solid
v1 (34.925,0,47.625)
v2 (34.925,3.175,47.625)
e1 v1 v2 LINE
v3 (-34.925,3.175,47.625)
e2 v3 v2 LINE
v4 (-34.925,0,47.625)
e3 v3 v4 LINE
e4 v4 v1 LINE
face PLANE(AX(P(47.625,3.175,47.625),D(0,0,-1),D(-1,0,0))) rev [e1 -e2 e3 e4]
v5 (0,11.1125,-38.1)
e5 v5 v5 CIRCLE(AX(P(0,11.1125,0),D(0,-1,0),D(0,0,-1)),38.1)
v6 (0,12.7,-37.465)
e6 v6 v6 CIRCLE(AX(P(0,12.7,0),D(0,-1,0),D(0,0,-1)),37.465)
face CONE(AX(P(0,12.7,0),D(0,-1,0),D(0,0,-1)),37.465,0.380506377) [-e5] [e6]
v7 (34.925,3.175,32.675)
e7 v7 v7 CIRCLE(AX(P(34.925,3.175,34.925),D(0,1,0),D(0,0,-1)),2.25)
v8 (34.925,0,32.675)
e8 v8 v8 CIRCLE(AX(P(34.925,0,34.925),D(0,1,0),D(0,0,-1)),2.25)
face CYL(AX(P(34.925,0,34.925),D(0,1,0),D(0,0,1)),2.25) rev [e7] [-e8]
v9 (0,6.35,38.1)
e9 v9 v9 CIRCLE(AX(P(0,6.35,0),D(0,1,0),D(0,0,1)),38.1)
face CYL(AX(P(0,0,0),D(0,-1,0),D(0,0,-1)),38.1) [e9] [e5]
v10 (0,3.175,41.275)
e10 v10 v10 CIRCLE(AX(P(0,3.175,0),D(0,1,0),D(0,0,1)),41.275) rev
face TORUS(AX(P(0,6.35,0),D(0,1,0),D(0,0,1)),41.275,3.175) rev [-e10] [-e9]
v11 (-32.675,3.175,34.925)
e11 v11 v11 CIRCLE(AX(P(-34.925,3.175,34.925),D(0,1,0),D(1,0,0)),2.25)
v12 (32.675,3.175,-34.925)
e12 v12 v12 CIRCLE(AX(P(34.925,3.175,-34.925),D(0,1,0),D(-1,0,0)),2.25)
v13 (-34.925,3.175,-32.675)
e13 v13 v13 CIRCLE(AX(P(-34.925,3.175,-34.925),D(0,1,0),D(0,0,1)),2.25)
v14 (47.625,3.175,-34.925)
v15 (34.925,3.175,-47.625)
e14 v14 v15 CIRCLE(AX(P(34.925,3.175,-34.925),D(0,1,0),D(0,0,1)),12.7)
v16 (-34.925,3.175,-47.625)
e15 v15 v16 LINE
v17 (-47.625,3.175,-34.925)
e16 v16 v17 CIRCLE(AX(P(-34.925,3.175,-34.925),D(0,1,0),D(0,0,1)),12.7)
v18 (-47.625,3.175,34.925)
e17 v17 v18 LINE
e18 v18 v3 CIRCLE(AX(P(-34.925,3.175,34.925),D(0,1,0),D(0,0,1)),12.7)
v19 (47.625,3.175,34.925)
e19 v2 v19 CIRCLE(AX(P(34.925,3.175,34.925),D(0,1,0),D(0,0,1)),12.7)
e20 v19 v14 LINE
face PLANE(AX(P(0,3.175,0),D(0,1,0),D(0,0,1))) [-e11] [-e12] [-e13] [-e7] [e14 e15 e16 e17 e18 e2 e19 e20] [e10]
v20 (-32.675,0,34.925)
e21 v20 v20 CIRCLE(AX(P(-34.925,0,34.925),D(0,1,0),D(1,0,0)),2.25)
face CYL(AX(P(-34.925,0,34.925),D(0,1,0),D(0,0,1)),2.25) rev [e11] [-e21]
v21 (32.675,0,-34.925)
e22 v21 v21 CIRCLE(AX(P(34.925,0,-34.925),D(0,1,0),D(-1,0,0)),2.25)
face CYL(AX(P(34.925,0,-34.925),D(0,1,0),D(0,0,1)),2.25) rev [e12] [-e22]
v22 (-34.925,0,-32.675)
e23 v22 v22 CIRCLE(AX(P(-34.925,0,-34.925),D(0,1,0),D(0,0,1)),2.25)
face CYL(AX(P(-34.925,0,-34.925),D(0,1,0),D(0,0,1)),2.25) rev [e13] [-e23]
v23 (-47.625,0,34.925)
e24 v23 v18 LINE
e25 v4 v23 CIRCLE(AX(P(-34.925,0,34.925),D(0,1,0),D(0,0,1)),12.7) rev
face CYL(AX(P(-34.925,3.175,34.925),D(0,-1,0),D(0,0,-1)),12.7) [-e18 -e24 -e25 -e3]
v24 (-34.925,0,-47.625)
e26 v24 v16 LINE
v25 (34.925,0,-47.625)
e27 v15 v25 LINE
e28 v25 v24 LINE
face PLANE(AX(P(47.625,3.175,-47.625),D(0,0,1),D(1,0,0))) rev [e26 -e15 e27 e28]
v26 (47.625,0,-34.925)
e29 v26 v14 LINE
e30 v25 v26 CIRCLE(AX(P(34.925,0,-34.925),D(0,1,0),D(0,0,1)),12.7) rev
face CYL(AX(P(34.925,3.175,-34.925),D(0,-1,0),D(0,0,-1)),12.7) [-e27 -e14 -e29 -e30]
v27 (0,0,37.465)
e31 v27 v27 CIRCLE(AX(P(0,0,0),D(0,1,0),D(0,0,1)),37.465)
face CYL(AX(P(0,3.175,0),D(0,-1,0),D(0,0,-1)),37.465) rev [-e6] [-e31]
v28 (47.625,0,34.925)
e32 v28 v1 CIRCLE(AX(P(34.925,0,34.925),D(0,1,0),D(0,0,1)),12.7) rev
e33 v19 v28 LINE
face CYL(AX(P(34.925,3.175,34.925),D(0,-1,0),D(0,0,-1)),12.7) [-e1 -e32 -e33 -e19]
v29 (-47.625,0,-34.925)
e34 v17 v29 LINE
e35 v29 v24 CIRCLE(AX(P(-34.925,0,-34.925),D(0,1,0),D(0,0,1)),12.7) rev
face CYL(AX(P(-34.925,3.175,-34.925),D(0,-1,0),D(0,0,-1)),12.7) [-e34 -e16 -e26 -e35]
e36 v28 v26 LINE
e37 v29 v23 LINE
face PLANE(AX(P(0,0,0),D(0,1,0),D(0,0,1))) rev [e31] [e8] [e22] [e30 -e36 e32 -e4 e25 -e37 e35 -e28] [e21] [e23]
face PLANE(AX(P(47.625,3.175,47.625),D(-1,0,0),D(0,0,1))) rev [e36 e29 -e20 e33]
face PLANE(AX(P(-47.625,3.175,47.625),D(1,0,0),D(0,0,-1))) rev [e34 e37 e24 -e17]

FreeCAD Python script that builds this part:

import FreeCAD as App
import Part
import Sketcher
Q = App.Units.Quantity


def edges_at(feature, points):
    """Names of the edges that pass closest to the given points."""
    edges = feature.Shape.Edges
    near = lambda p: min(range(len(edges)), key=lambda i: edges[i].distToShape(Part.Vertex(*p))[0])
    return sorted({f"Edge{near(p) + 1}" for p in points})

doc = App.newDocument("Part")
body = doc.addObject("PartDesign::Body", "Body")

# Sketch on XZ plane
sketch1 = body.newObject("Sketcher::SketchObject", "Sketch")
sketch1.AttachmentSupport = (doc.getObject("XZ_Plane"), [""])
sketch1.MapMode = "FlatFace"
sketch1.addGeometry([
    Part.LineSegment(App.Vector(-48, -48, 0), App.Vector(-48, 48, 0)),  # 0
    Part.LineSegment(App.Vector(-48, 48, 0), App.Vector(48, 48, 0)),  # 1
    Part.LineSegment(App.Vector(48, 48, 0), App.Vector(48, -48, 0)),  # 2
    Part.LineSegment(App.Vector(48, -48, 0), App.Vector(-48, -48, 0)),  # 3
    Part.Circle(App.Vector(0, 0, 0), App.Vector(0, 0, 1), 37),  # 4
], False)
sketch1.addConstraint([
    Sketcher.Constraint("Coincident", 0, 2, 1, 1),
    Sketcher.Constraint("Coincident", 1, 2, 2, 1),
    Sketcher.Constraint("Coincident", 2, 2, 3, 1),
    Sketcher.Constraint("Coincident", 3, 2, 0, 1),
    Sketcher.Constraint("Vertical", 0),
    Sketcher.Constraint("Horizontal", 1),
    Sketcher.Constraint("Vertical", 2),
    Sketcher.Constraint("Horizontal", 3),
    Sketcher.Constraint("Coincident", 4, 3, -1, 1),
    Sketcher.Constraint("Symmetric", 0, 2, 2, 2, -1, 1),
    Sketcher.Constraint("Equal", 3, 0),
    Sketcher.Constraint("Diameter", 4, Q("2.95 in")),
    Sketcher.Constraint("DistanceX", 1, 1, 1, 2, Q("3.75 in")),
])
pad1 = body.newObject("PartDesign::Pad", "Pad")
pad1.Profile = sketch1
pad1.Length = Q("0.125 in")
pad1.Reversed = True

# Sketch on XZ plane
sketch2 = body.newObject("Sketcher::SketchObject", "Sketch001")
sketch2.AttachmentSupport = (doc.getObject("XZ_Plane"), [""])
sketch2.MapMode = "FlatFace"
sketch2.AttachmentOffset = App.Placement(App.Vector(0, 0, -0.125 * 25.4), App.Rotation())
sketch2.addGeometry(Part.Circle(App.Vector(-34.9, -34.9, 0), App.Vector(0, 0, 1), 2.2), False)
sketch2.addConstraint([
    Sketcher.Constraint("Diameter", 0, 4.5),
    Sketcher.Constraint("DistanceX", 0, 3, -1, 1, Q("1.375 in")),
    Sketcher.Constraint("DistanceY", 0, 3, -1, 1, Q("1.375 in")),
])
pocket1 = body.newObject("PartDesign::Pocket", "Pocket")
pocket1.Profile = sketch2
pocket1.Type = "ThroughAll"
pocket1.Reversed = True
doc.recompute()

polarpattern = body.newObject("PartDesign::PolarPattern", "PolarPattern")
polarpattern.Originals = [pocket1]
polarpattern.Axis = (doc.getObject("Y_Axis"), [""])
polarpattern.Angle = 360
polarpattern.Occurrences = 4
body.Tip = polarpattern
doc.recompute()

fillet = body.newObject("PartDesign::Fillet", "Fillet")
fillet.Base = (polarpattern, edges_at(polarpattern, [
    (-47.625, 1.587, -47.625),
    (47.625, 1.587, -47.625),
    (47.625, 1.587, 47.625),
    (-47.625, 1.587, 47.625),
]))
fillet.Radius = Q("0.5 in")

# Sketch on XY plane
sketch3 = body.newObject("Sketcher::SketchObject", "Sketch002")
sketch3.AttachmentSupport = (doc.getObject("XY_Plane"), [""])
sketch3.MapMode = "FlatFace"
sketch3.addGeometry([
    Part.LineSegment(App.Vector(37.5, 3.2, 0), App.Vector(38.1, 3.2, 0)),
    Part.LineSegment(App.Vector(38.1, 3.2, 0), App.Vector(38.1, 11.1, 0)),
    Part.LineSegment(App.Vector(38.1, 11.1, 0), App.Vector(37.5, 12.7, 0)),
    Part.LineSegment(App.Vector(37.5, 12.7, 0), App.Vector(37.5, 3.2, 0)),
], False)
sketch3.addConstraint([
    Sketcher.Constraint("Coincident", 0, 2, 1, 1),
    Sketcher.Constraint("Coincident", 1, 2, 2, 1),
    Sketcher.Constraint("Coincident", 2, 2, 3, 1),
    Sketcher.Constraint("Coincident", 3, 2, 0, 1),
    Sketcher.Constraint("Horizontal", 0),
    Sketcher.Constraint("Vertical", 1),
    Sketcher.Constraint("Vertical", 3),
    Sketcher.Constraint("DistanceX", -1, 1, 0, 2, Q("1.5 in")),
    Sketcher.Constraint("DistanceY", -1, 1, 2, 2, Q("0.5 in")),
    Sketcher.Constraint("DistanceX", 0, 1, 0, 2, Q("0.025 in")),
    Sketcher.Constraint("DistanceY", 1, 1, 1, 2, Q("0.3125 in")),
    Sketcher.Constraint("DistanceY", 3, 2, 3, 1, Q("0.375 in")),
])
revolution = body.newObject("PartDesign::Revolution", "Revolution")
revolution.Profile = sketch3
revolution.ReferenceAxis = (sketch3, ["V_Axis"])
revolution.Angle = 360
doc.recompute()

fillet2 = body.newObject("PartDesign::Fillet", "Fillet001")
fillet2.Base = (revolution, edges_at(revolution, [(-38.1, 3.175, 0)]))
fillet2.Radius = Q("0.125 in")

doc.recompute()
